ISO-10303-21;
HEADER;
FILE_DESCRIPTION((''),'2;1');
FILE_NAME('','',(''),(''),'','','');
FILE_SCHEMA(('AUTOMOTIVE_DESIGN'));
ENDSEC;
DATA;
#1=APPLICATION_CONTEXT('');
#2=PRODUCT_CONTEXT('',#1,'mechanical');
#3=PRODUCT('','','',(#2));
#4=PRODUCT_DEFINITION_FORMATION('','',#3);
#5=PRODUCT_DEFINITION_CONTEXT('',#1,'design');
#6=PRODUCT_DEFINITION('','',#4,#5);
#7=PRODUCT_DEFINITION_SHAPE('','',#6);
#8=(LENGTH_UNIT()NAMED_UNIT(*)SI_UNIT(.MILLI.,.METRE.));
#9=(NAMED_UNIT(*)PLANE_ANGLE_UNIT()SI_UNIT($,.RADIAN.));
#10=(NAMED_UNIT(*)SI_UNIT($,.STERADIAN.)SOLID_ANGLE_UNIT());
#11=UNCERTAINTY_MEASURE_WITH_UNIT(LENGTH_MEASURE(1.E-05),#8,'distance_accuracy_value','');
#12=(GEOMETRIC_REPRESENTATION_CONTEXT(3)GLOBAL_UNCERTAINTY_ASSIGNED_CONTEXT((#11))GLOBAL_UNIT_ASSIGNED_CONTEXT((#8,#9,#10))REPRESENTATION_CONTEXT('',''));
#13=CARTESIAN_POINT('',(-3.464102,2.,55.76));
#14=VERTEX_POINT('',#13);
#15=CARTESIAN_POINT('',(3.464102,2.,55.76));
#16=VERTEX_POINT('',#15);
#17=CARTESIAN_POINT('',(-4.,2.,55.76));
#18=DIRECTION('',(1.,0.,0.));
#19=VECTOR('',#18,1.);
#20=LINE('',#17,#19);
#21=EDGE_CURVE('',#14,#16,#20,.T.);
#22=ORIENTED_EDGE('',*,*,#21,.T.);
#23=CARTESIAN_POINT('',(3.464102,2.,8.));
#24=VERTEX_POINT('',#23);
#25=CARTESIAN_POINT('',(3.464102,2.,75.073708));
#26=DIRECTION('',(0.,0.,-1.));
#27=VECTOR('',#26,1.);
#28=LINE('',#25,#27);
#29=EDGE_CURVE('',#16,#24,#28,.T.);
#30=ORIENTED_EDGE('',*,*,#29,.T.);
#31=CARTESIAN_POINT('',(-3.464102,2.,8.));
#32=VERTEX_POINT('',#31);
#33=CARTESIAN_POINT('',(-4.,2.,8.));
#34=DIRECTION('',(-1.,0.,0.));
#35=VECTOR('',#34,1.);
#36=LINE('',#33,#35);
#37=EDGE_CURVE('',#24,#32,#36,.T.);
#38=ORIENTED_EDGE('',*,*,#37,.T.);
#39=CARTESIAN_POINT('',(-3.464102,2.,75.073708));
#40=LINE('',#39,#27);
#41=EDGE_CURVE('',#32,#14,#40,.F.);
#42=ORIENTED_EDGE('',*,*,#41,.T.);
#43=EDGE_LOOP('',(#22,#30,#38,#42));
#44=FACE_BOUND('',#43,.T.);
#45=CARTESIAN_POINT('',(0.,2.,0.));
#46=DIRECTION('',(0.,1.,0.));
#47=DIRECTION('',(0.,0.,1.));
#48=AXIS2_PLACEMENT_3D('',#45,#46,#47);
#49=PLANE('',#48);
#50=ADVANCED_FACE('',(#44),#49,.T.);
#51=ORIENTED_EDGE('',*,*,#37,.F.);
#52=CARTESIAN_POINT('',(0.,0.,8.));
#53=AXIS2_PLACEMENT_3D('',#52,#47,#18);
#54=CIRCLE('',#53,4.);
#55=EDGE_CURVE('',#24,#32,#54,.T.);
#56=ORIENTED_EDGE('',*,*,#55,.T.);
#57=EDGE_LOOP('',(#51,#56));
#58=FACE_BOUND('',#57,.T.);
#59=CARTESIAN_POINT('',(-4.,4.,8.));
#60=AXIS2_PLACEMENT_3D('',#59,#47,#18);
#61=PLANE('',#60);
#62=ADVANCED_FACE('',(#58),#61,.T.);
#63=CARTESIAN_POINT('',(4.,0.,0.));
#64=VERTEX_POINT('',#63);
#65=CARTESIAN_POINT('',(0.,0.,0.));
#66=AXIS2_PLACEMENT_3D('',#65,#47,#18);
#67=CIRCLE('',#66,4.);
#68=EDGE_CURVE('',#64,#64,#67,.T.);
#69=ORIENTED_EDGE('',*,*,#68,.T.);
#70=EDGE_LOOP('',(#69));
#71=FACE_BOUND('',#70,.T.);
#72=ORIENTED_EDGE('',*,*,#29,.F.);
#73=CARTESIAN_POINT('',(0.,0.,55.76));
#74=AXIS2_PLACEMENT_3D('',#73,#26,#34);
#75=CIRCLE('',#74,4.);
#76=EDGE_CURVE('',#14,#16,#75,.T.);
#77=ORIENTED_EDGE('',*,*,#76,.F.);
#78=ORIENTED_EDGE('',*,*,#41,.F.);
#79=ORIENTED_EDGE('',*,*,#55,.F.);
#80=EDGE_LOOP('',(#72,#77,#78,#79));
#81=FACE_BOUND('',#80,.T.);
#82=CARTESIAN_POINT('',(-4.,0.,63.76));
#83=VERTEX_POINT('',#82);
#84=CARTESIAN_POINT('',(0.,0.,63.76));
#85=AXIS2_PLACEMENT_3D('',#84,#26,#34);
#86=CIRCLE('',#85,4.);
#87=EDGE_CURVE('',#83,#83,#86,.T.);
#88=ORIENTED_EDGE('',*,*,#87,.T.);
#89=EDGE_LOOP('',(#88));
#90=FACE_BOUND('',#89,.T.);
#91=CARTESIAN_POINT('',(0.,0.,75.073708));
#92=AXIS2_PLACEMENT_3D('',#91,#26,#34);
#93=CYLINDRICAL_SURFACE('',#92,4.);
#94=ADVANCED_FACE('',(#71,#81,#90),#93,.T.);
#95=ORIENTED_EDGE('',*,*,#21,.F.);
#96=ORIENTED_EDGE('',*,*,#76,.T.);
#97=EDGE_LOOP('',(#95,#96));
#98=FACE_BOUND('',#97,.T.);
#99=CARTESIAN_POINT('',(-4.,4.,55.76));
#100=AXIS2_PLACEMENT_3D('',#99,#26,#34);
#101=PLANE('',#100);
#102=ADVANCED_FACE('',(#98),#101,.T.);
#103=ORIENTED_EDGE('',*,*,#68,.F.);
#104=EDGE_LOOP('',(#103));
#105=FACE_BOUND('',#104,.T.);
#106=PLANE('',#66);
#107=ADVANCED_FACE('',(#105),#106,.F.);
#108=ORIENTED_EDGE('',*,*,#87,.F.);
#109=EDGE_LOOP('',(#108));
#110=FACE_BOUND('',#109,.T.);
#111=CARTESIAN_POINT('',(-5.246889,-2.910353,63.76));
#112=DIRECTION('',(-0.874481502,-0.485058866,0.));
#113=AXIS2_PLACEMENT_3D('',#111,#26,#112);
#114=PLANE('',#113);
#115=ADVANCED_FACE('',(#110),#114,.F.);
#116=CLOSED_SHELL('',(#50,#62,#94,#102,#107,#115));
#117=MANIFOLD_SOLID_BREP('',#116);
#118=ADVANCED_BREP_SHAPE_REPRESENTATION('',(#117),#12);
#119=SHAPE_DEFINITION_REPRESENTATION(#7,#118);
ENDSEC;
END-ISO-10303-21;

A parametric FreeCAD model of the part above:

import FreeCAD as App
import Part
import Sketcher

V = App.Vector
Q = App.Units.Quantity

doc = App.newDocument("Part")
body = doc.addObject("PartDesign::Body", "Body")

# Sketch on XY plane
sketch1 = body.newObject("Sketcher::SketchObject", "Sketch")
sketch1.AttachmentSupport = (doc.getObject("XY_Plane"), [""])
sketch1.MapMode = "FlatFace"
sketch1.addGeometry(Part.Circle(V(0, 0, 0), V(0, 0, 1), 4), False)
sketch1.addConstraint([
    Sketcher.Constraint("Coincident", 0, 3, -1, 1),
    Sketcher.Constraint("Diameter", 0, Q("8 mm")),
])
pad1 = body.newObject("PartDesign::Pad", "Pad")
pad1.Profile = sketch1
pad1.Length = 63.76

# Sketch on XZ plane
sketch2 = body.newObject("Sketcher::SketchObject", "Sketch001")
sketch2.AttachmentSupport = (doc.getObject("XZ_Plane"), [""])
sketch2.MapMode = "FlatFace"
sketch2.AttachmentOffset = App.Placement(V(0, 0, -2), App.Rotation())
sketch2.addGeometry([
    Part.LineSegment(V(-4, 8, 0), V(-4, 55.76, 0)),
    Part.LineSegment(V(-4, 55.76, 0), V(4, 55.76, 0)),
    Part.LineSegment(V(4, 55.76, 0), V(4, 8, 0)),
    Part.LineSegment(V(4, 8, 0), V(-4, 8, 0)),
], False)
sketch2.addConstraint([
    Sketcher.Constraint("Coincident", 0, 2, 1, 1),
    Sketcher.Constraint("Coincident", 1, 2, 2, 1),
    Sketcher.Constraint("Coincident", 2, 2, 3, 1),
    Sketcher.Constraint("Coincident", 3, 2, 0, 1),
    Sketcher.Constraint("Vertical", 0),
    Sketcher.Constraint("Horizontal", 1),
    Sketcher.Constraint("Vertical", 2),
    Sketcher.Constraint("Horizontal", 3),
    Sketcher.Constraint("DistanceX", 1, 1, 1, 2, Q("8 mm")),
    Sketcher.Constraint("DistanceX", 0, 2, -1, 1, Q("4 mm")),
    Sketcher.Constraint("DistanceY", -1, 1, 2, 2, Q("8 mm")),
    Sketcher.Constraint("DistanceY", 0, 1, 0, 2, Q("47.76 mm")),
])
pocket1 = body.newObject("PartDesign::Pocket", "Pocket")
pocket1.Profile = sketch2
pocket1.Type = "ThroughAll"

doc.recompute()
